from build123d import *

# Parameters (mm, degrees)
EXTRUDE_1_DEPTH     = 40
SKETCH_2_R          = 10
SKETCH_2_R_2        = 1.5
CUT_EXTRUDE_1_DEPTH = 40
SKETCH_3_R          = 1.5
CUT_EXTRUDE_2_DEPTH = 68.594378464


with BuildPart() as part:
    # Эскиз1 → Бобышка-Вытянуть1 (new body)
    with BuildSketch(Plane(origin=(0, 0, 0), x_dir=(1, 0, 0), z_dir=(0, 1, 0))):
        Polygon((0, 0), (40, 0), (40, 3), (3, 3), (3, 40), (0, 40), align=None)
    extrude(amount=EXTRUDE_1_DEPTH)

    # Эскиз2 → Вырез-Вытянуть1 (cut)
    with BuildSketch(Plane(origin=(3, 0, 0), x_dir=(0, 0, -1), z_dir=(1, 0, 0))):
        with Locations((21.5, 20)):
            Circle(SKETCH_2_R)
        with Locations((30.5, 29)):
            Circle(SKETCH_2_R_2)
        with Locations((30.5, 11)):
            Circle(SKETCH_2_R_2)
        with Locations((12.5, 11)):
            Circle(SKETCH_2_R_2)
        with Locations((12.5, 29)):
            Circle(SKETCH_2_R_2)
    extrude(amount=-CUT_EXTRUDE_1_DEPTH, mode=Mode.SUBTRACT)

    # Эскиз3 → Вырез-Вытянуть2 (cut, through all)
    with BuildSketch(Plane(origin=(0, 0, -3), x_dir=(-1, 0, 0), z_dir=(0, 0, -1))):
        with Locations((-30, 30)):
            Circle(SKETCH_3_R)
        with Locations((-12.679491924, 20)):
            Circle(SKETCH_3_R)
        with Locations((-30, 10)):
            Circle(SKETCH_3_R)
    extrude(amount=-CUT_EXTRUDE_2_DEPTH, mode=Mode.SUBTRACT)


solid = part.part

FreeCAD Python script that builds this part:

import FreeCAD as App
import Part
import Sketcher

doc = App.newDocument("Part")
params = doc.addObject("Spreadsheet::Sheet", "Params")
for row, (alias, value) in enumerate([
    ("sketch1_width", "40 mm"),
    ("sketch1_width2", "37 mm"),
    ("pad1_length", "40 mm"),
    ("sketch2_diameter", "20 mm"),
    ("sketch2_diameter2", "3 mm"),
    ("pocket1_length", "40 mm"),
    ("sketch3_diameter", "3 mm"),
], start=1):
    params.set(f"A{row}", alias)
    params.set(f"B{row}", "=" + value)
    params.setAlias(f"B{row}", alias)

body = doc.addObject("PartDesign::Body", "Body")

# Sketch on XZ plane
sketch1 = body.newObject("Sketcher::SketchObject", "Sketch")
sketch1.AttachmentSupport = (doc.getObject("XZ_Plane"), [""])
sketch1.MapMode = "FlatFace"
sketch1.addGeometry([
    Part.LineSegment(App.Vector(0, 0, 0), App.Vector(40, 0, 0)),  # 0
    Part.LineSegment(App.Vector(40, 0, 0), App.Vector(40, -3, 0)),  # 1
    Part.LineSegment(App.Vector(40, -3, 0), App.Vector(3, -3, 0)),  # 2
    Part.LineSegment(App.Vector(3, -3, 0), App.Vector(3, -40, 0)),  # 3
    Part.LineSegment(App.Vector(3, -40, 0), App.Vector(0, -40, 0)),  # 4
    Part.LineSegment(App.Vector(0, -40, 0), App.Vector(0, 0, 0)),  # 5
], False)
sketch1.addConstraint([
    Sketcher.Constraint("Coincident", 0, 2, 1, 1),
    Sketcher.Constraint("Coincident", 1, 2, 2, 1),
    Sketcher.Constraint("Coincident", 2, 2, 3, 1),
    Sketcher.Constraint("Coincident", 3, 2, 4, 1),
    Sketcher.Constraint("Coincident", 4, 2, 5, 1),
    Sketcher.Constraint("Coincident", 5, 2, 0, 1),
    Sketcher.Constraint("Horizontal", 0),
    Sketcher.Constraint("Vertical", 1),
    Sketcher.Constraint("Horizontal", 2),
    Sketcher.Constraint("Vertical", 3),
    Sketcher.Constraint("Horizontal", 4),
    Sketcher.Constraint("Vertical", 5),
    Sketcher.Constraint("Coincident", 5, 2, -1, 1),
    Sketcher.Constraint("Equal", 4, 1),
    Sketcher.Constraint("Equal", 2, 3),
    Sketcher.Constraint("DistanceX", 0, 1, 0, 2, 40.0),
    Sketcher.Constraint("DistanceX", 2, 2, 2, 1, 37.0),
])
sketch1.setExpression("Constraints[15]", "Params.sketch1_width")
sketch1.setExpression("Constraints[16]", "Params.sketch1_width2")
pad1 = body.newObject("PartDesign::Pad", "Pad")
pad1.Profile = sketch1
pad1.setExpression("Length", "Params.pad1_length")
pad1.Reversed = True

# Sketch on YZ plane
sketch2 = body.newObject("Sketcher::SketchObject", "Sketch001")
sketch2.AttachmentSupport = (doc.getObject("YZ_Plane"), [""])
sketch2.MapMode = "FlatFace"
sketch2.AttachmentOffset = App.Placement(App.Vector(0, 0, 3), App.Rotation())
sketch2.addGeometry([
    Part.Circle(App.Vector(20, -21.5, 0), App.Vector(0, 0, 1), 10),  # 0
    Part.Circle(App.Vector(29, -30.5, 0), App.Vector(0, 0, 1), 1.5),  # 1
    Part.Circle(App.Vector(11, -30.5, 0), App.Vector(0, 0, 1), 1.5),  # 2
    Part.Circle(App.Vector(11, -12.5, 0), App.Vector(0, 0, 1), 1.5),  # 3
    Part.Circle(App.Vector(29, -12.5, 0), App.Vector(0, 0, 1), 1.5),  # 4
], False)
sketch2.addConstraint([
    Sketcher.Constraint("Equal", 1, 2),
    Sketcher.Constraint("Equal", 2, 3),
    Sketcher.Constraint("Equal", 3, 4),
    Sketcher.Constraint("Horizontal", 1, 3, 2, 3),
    Sketcher.Constraint("Horizontal", 3, 3, 4, 3),
    Sketcher.Constraint("Vertical", 2, 3, 3, 3),
    Sketcher.Constraint("Vertical", 1, 3, 4, 3),
    Sketcher.Constraint("Diameter", 0, 20.0),
    Sketcher.Constraint("Diameter", 1, 3.0),
    Sketcher.Constraint("DistanceX", -1, 1, 0, 3, 20.0),
    Sketcher.Constraint("DistanceX", -1, 1, 1, 3, 29.0),
    Sketcher.Constraint("DistanceX", -1, 1, 2, 3, 11.0),
    Sketcher.Constraint("DistanceY", 1, 3, 0, 3, 9.0),
    Sketcher.Constraint("DistanceY", 0, 3, 3, 3, 9.0),
    Sketcher.Constraint("DistanceY", 0, 3, -1, 1, 21.5),
])
sketch2.setExpression("Constraints[7]", "Params.sketch2_diameter")
sketch2.setExpression("Constraints[8]", "Params.sketch2_diameter2")
pocket1 = body.newObject("PartDesign::Pocket", "Pocket")
pocket1.Profile = sketch2
pocket1.setExpression("Length", "Params.pocket1_length")

# Sketch on XY plane
sketch3 = body.newObject("Sketcher::SketchObject", "Sketch002")
sketch3.AttachmentSupport = (doc.getObject("XY_Plane"), [""])
sketch3.MapMode = "FlatFace"
sketch3.AttachmentOffset = App.Placement(App.Vector(0, 0, -3), App.Rotation())
sketch3.addGeometry([
    Part.Circle(App.Vector(30, 30, 0), App.Vector(0, 0, 1), 1.5),
    Part.Circle(App.Vector(12.7, 20, 0), App.Vector(0, 0, 1), 1.5),
    Part.Circle(App.Vector(30, 10, 0), App.Vector(0, 0, 1), 1.5),
], False)
sketch3.addConstraint([
    Sketcher.Constraint("Equal", 0, 1),
    Sketcher.Constraint("Equal", 1, 2),
    Sketcher.Constraint("Vertical", 0, 3, 2, 3),
    Sketcher.Constraint("Diameter", 0, 3.0),
    Sketcher.Constraint("DistanceX", -1, 1, 0, 3, 30.0),
    Sketcher.Constraint("DistanceY", -1, 1, 0, 3, 30.0),
    Sketcher.Constraint("DistanceY", -1, 1, 1, 3, 20.0),
    Sketcher.Constraint("DistanceY", -1, 1, 2, 3, 10.0),
    Sketcher.Constraint("DistanceX", -1, 1, 1, 3, 12.679492),
])
sketch3.setExpression("Constraints[3]", "Params.sketch3_diameter")
pocket2 = body.newObject("PartDesign::Pocket", "Pocket001")
pocket2.Profile = sketch3
pocket2.Type = "ThroughAll"
pocket2.Reversed = True

doc.recompute()
